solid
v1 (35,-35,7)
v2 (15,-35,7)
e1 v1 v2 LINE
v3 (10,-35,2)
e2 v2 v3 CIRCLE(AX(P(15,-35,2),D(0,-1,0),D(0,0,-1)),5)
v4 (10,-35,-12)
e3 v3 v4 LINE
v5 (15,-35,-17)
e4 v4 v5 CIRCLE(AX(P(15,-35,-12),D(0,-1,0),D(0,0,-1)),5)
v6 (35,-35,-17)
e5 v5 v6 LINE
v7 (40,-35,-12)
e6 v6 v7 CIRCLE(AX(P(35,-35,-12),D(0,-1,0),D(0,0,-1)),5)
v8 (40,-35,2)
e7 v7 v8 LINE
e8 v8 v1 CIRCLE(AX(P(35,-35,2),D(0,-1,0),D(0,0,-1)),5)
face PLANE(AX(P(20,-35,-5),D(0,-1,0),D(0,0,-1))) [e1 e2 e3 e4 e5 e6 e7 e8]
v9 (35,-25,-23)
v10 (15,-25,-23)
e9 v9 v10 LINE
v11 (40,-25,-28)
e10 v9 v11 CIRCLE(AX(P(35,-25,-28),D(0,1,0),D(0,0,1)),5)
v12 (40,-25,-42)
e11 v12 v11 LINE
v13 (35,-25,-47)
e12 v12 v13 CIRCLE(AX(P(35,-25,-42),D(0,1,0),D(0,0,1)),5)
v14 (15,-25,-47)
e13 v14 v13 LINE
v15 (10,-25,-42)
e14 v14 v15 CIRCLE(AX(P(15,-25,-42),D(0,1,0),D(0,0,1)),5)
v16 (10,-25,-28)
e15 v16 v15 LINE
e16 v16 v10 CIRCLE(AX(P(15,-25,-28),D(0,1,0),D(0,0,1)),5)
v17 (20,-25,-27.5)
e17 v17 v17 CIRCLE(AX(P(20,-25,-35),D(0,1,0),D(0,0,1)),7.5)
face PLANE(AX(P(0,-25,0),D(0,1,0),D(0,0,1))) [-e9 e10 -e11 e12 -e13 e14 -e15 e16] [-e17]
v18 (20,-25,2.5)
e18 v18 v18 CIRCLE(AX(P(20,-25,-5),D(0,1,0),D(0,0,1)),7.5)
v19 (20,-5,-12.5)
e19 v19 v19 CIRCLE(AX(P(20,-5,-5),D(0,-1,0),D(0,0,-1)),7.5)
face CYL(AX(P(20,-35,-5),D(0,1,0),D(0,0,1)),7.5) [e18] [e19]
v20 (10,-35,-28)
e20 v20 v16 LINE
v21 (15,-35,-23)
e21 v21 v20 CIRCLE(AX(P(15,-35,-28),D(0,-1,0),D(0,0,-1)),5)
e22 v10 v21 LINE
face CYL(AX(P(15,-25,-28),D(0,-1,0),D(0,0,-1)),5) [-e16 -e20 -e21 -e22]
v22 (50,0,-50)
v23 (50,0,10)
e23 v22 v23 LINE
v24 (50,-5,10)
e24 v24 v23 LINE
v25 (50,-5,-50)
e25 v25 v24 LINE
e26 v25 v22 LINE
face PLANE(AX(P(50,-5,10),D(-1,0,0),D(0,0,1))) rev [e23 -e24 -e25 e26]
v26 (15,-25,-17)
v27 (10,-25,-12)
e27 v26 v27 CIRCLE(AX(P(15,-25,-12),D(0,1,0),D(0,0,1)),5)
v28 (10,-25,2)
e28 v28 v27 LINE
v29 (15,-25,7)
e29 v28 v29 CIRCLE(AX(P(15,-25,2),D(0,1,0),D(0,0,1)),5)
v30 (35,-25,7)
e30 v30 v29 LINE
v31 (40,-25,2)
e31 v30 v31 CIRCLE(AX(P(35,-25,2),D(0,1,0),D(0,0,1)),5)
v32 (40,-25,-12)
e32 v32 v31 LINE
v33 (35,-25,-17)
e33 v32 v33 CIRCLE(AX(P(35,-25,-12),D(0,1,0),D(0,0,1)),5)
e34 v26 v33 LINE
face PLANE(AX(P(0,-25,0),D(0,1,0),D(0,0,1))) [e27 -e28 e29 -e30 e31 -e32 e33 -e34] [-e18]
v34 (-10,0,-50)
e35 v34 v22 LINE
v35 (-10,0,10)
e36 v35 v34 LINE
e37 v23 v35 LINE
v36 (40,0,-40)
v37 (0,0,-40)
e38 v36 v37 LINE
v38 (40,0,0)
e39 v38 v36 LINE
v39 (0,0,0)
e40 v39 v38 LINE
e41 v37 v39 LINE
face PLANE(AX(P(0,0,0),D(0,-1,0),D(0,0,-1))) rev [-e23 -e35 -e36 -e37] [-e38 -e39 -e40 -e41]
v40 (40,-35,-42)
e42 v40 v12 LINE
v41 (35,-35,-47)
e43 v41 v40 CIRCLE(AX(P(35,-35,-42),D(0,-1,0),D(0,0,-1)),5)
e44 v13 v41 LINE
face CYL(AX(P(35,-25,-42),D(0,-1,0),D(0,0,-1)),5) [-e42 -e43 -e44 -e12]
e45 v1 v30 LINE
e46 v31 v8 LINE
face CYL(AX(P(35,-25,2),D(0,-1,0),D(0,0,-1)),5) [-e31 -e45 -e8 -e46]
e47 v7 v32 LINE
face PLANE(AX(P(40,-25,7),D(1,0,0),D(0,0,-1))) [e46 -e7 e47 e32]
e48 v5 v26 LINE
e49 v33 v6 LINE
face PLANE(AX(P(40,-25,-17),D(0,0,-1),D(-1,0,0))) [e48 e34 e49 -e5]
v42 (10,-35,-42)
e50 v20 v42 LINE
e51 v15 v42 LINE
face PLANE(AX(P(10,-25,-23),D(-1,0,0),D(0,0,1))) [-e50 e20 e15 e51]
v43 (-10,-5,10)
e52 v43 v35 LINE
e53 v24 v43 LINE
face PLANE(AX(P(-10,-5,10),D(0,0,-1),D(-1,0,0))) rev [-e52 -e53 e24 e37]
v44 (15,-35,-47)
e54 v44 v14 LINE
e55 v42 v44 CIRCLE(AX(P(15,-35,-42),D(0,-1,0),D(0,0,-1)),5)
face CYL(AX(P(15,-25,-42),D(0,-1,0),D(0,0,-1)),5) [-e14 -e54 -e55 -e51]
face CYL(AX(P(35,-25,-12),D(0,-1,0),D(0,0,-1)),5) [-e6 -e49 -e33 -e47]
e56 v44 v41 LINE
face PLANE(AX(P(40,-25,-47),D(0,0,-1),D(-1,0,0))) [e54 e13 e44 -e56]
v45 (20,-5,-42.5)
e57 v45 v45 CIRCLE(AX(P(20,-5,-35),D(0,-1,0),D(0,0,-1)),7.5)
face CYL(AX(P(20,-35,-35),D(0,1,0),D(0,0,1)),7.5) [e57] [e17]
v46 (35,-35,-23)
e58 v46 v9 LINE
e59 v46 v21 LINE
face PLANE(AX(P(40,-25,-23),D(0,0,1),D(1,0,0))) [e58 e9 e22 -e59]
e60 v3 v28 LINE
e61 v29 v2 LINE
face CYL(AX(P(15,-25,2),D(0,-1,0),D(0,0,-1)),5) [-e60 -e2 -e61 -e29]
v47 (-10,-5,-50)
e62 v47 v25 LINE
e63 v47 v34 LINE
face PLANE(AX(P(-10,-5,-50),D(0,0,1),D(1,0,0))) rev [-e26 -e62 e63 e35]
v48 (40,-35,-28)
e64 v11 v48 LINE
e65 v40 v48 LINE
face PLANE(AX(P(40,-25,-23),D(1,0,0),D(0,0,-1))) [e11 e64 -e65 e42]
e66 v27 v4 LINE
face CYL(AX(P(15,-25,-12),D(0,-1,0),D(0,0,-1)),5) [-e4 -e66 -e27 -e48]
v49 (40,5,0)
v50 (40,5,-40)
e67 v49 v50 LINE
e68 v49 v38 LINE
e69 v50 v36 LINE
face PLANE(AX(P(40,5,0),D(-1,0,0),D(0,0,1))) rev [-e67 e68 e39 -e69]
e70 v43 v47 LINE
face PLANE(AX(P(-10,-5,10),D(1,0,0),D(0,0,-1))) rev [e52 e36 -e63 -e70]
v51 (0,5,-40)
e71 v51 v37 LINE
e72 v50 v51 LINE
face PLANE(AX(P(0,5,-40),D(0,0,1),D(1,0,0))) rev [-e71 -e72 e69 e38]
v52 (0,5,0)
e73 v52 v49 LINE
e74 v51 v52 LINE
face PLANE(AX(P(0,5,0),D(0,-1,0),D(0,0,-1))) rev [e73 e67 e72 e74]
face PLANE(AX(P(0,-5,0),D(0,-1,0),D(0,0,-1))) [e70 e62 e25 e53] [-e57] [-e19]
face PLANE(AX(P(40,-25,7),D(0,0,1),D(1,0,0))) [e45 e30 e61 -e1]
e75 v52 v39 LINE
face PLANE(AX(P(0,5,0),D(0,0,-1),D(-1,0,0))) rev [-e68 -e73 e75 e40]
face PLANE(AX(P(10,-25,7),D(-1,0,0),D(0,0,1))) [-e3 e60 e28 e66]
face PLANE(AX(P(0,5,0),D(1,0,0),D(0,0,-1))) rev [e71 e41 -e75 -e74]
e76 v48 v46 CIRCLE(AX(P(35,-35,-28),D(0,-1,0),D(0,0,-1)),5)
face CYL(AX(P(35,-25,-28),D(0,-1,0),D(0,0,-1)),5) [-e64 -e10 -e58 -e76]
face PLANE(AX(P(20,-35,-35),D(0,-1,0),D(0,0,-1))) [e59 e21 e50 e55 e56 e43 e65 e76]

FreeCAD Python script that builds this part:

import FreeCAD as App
import Part
import Sketcher
from FreeCAD import Vector


def edges_at(feature, points):
    """Names of the edges that pass closest to the given points."""
    edges = feature.Shape.Edges
    near = lambda p: min(range(len(edges)), key=lambda i: edges[i].distToShape(Part.Vertex(*p))[0])
    return sorted({f"Edge{near(p) + 1}" for p in points})

doc = App.newDocument("Part")
params = doc.addObject("Spreadsheet::Sheet", "Params")
for row, (alias, value) in enumerate([
    ("sketch1_width", "40 mm"),
    ("pad1_length", "5 mm"),
    ("sketch2_width", "60 mm"),
    ("pad2_length", "5 mm"),
    ("sketch3_diameter", "15 mm"),
    ("pad3_length", "30 mm"),
    ("sketch4_width", "30 mm"),
    ("sketch4_height", "24 mm"),
    ("pad4_length", "10 mm"),
    ("fillet_radius", "5 mm"),
], start=1):
    params.set(f"A{row}", alias)
    params.set(f"B{row}", "=" + value)
    params.setAlias(f"B{row}", alias)

body = doc.addObject("PartDesign::Body", "Body")

# Sketch on XZ plane
sketch1 = body.newObject("Sketcher::SketchObject", "Sketch")
sketch1.AttachmentSupport = (doc.getObject("XZ_Plane"), [""])
sketch1.MapMode = "FlatFace"
sketch1.addGeometry([
    Part.LineSegment(Vector(0, -40, 0), Vector(0, 0, 0)),
    Part.LineSegment(Vector(0, 0, 0), Vector(40, 0, 0)),
    Part.LineSegment(Vector(40, 0, 0), Vector(40, -40, 0)),
    Part.LineSegment(Vector(40, -40, 0), Vector(0, -40, 0)),
], False)
sketch1.addConstraint([
    Sketcher.Constraint("Coincident", 0, 2, 1, 1),
    Sketcher.Constraint("Coincident", 1, 2, 2, 1),
    Sketcher.Constraint("Coincident", 2, 2, 3, 1),
    Sketcher.Constraint("Coincident", 3, 2, 0, 1),
    Sketcher.Constraint("Vertical", 0),
    Sketcher.Constraint("Horizontal", 1),
    Sketcher.Constraint("Vertical", 2),
    Sketcher.Constraint("Horizontal", 3),
    Sketcher.Constraint("Coincident", 0, 2, -1, 1),
    Sketcher.Constraint("Equal", 3, 0),
    Sketcher.Constraint("DistanceX", 1, 1, 1, 2, 40.0),
])
sketch1.setExpression("Constraints[10]", "Params.sketch1_width")
pad1 = body.newObject("PartDesign::Pad", "Pad")
pad1.Profile = sketch1
pad1.setExpression("Length", "Params.pad1_length")
pad1.Reversed = True

# Sketch on XZ plane
sketch2 = body.newObject("Sketcher::SketchObject", "Sketch001")
sketch2.AttachmentSupport = (doc.getObject("XZ_Plane"), [""])
sketch2.MapMode = "FlatFace"
sketch2.addGeometry([
    Part.LineSegment(Vector(50, -50, 0), Vector(50, 10, 0)),
    Part.LineSegment(Vector(50, 10, 0), Vector(-10, 10, 0)),
    Part.LineSegment(Vector(-10, 10, 0), Vector(-10, -50, 0)),
    Part.LineSegment(Vector(-10, -50, 0), Vector(50, -50, 0)),
], False)
sketch2.addConstraint([
    Sketcher.Constraint("Coincident", 0, 2, 1, 1),
    Sketcher.Constraint("Coincident", 1, 2, 2, 1),
    Sketcher.Constraint("Coincident", 2, 2, 3, 1),
    Sketcher.Constraint("Coincident", 3, 2, 0, 1),
    Sketcher.Constraint("Vertical", 0),
    Sketcher.Constraint("Horizontal", 1),
    Sketcher.Constraint("Vertical", 2),
    Sketcher.Constraint("Horizontal", 3),
    Sketcher.Constraint("Equal", 3, 0),
    Sketcher.Constraint("DistanceX", 1, 2, 1, 1, 60.0),
    Sketcher.Constraint("DistanceX", -1, 1, 0, 2, 50.0),
    Sketcher.Constraint("DistanceY", -1, 1, 0, 2, 10.0),
])
sketch2.setExpression("Constraints[9]", "Params.sketch2_width")
pad2 = body.newObject("PartDesign::Pad", "Pad001")
pad2.Profile = sketch2
pad2.setExpression("Length", "Params.pad2_length")

# Sketch on XZ plane
sketch3 = body.newObject("Sketcher::SketchObject", "Sketch002")
sketch3.AttachmentSupport = (doc.getObject("XZ_Plane"), [""])
sketch3.MapMode = "FlatFace"
sketch3.AttachmentOffset = App.Placement(Vector(0, 0, 5), App.Rotation())
sketch3.addGeometry([
    Part.Circle(Vector(20, -5, 0), Vector(0, 0, 1), 8),
    Part.Circle(Vector(20, -35, 0), Vector(0, 0, 1), 8),
], False)
sketch3.addConstraint([
    Sketcher.Constraint("Equal", 0, 1),
    Sketcher.Constraint("Vertical", 0, 3, 1, 3),
    Sketcher.Constraint("Diameter", 0, 15.0),
    Sketcher.Constraint("DistanceX", -1, 1, 0, 3, 20.0),
    Sketcher.Constraint("DistanceY", 0, 3, -1, 1, 5.0),
    Sketcher.Constraint("DistanceY", 1, 3, -1, 1, 35.0),
])
sketch3.setExpression("Constraints[2]", "Params.sketch3_diameter")
pad3 = body.newObject("PartDesign::Pad", "Pad002")
pad3.Profile = sketch3
pad3.setExpression("Length", "Params.pad3_length")

# Sketch on XZ plane
sketch4 = body.newObject("Sketcher::SketchObject", "Sketch003")
sketch4.AttachmentSupport = (doc.getObject("XZ_Plane"), [""])
sketch4.MapMode = "FlatFace"
sketch4.AttachmentOffset = App.Placement(Vector(0, 0, 35), App.Rotation())
sketch4.addGeometry([
    Part.LineSegment(Vector(40, -17, 0), Vector(40, 7, 0)),  # 0
    Part.LineSegment(Vector(40, 7, 0), Vector(10, 7, 0)),  # 1
    Part.LineSegment(Vector(10, 7, 0), Vector(10, -17, 0)),  # 2
    Part.LineSegment(Vector(10, -17, 0), Vector(40, -17, 0)),  # 3
    Part.LineSegment(Vector(40, -47, 0), Vector(40, -23, 0)),  # 4
    Part.LineSegment(Vector(40, -23, 0), Vector(10, -23, 0)),  # 5
    Part.LineSegment(Vector(10, -23, 0), Vector(10, -47, 0)),  # 6
    Part.LineSegment(Vector(10, -47, 0), Vector(40, -47, 0)),  # 7
], False)
sketch4.addConstraint([
    Sketcher.Constraint("Coincident", 0, 2, 1, 1),
    Sketcher.Constraint("Coincident", 1, 2, 2, 1),
    Sketcher.Constraint("Coincident", 2, 2, 3, 1),
    Sketcher.Constraint("Coincident", 3, 2, 0, 1),
    Sketcher.Constraint("Coincident", 4, 2, 5, 1),
    Sketcher.Constraint("Coincident", 5, 2, 6, 1),
    Sketcher.Constraint("Coincident", 6, 2, 7, 1),
    Sketcher.Constraint("Coincident", 7, 2, 4, 1),
    Sketcher.Constraint("Vertical", 0),
    Sketcher.Constraint("Horizontal", 1),
    Sketcher.Constraint("Vertical", 2),
    Sketcher.Constraint("Horizontal", 3),
    Sketcher.Constraint("Vertical", 4),
    Sketcher.Constraint("Horizontal", 5),
    Sketcher.Constraint("Vertical", 6),
    Sketcher.Constraint("Horizontal", 7),
    Sketcher.Constraint("Vertical", 3, 2, 4, 2),
    Sketcher.Constraint("Vertical", 2, 2, 5, 2),
    Sketcher.Constraint("Equal", 2, 4),
    Sketcher.Constraint("DistanceX", 1, 2, 1, 1, 30.0),
    Sketcher.Constraint("DistanceY", 0, 1, 0, 2, 24.0),
    Sketcher.Constraint("DistanceX", -1, 1, 0, 2, 40.0),
    Sketcher.Constraint("DistanceY", -1, 1, 0, 2, 7.0),
    Sketcher.Constraint("DistanceY", 4, 2, -1, 1, 23.0),
])
sketch4.setExpression("Constraints[19]", "Params.sketch4_width")
sketch4.setExpression("Constraints[20]", "Params.sketch4_height")
pad4 = body.newObject("PartDesign::Pad", "Pad003")
pad4.Profile = sketch4
pad4.setExpression("Length", "Params.pad4_length")
pad4.Reversed = True
doc.recompute()

fillet = body.newObject("PartDesign::Fillet", "Fillet")
fillet.Base = (pad4, edges_at(pad4, [
    (40, -30, 7),
    (40, -30, -17),
    (10, -30, -17),
    (10, -30, 7),
    (40, -30, -23),
    (40, -30, -47),
    (10, -30, -47),
    (10, -30, -23),
]))
fillet.setExpression("Radius", "Params.fillet_radius")

doc.recompute()
